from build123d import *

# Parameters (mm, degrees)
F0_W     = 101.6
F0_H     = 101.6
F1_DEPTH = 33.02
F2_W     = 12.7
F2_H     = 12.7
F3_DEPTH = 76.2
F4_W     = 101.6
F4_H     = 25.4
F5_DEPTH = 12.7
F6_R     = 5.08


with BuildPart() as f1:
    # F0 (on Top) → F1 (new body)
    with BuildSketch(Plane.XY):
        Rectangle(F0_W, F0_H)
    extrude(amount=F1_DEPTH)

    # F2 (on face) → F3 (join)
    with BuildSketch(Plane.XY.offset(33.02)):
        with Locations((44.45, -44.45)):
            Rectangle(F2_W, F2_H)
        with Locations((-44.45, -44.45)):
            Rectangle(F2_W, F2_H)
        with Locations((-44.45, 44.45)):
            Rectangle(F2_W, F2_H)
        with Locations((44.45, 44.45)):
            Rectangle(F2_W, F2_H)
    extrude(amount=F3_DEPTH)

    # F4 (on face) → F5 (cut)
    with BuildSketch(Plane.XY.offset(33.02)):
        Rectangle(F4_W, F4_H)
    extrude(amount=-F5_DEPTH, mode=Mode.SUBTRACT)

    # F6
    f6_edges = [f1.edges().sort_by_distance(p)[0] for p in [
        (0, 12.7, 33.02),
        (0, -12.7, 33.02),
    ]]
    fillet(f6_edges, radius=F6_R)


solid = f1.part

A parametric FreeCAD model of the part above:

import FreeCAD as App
import Part
import Sketcher

V = App.Vector
Q = App.Units.Quantity


def edges_at(feature, points):
    """Names of the edges that pass closest to the given points."""
    edges = feature.Shape.Edges
    near = lambda p: min(range(len(edges)), key=lambda i: edges[i].distToShape(Part.Vertex(*p))[0])
    return sorted({f"Edge{near(p) + 1}" for p in points})


def add_polygon(sketch, points):
    """Adds a closed chain of lines whose ends are joined by coincident constraints."""
    first, n = sketch.GeometryCount, len(points)
    for a, b in zip(points, points[1:] + points[:1]):
        sketch.addGeometry(Part.LineSegment(App.Vector(*a, 0), App.Vector(*b, 0)), False)
    for i in range(n):
        sketch.addConstraint(Sketcher.Constraint("Coincident", first + i, 2, first + (i + 1) % n, 1))

doc = App.newDocument("Part")
body = doc.addObject("PartDesign::Body", "Body")

# Sketch on XY plane
sketch1 = doc.addObject("Sketcher::SketchObject", "Sketch")
body.addObject(sketch1)
sketch1.AttachmentSupport = (doc.XY_Plane, [""])
sketch1.MapMode = "FlatFace"
add_polygon(sketch1, [(-51, 51), (-51, -51), (51, -51), (51, 51)])  # lines 0-3
sketch1.addConstraint(Sketcher.Constraint("Vertical", 0))
sketch1.addConstraint(Sketcher.Constraint("Horizontal", 1))
sketch1.addConstraint(Sketcher.Constraint("Vertical", 2))
sketch1.addConstraint(Sketcher.Constraint("Horizontal", 3))
sketch1.addConstraint(Sketcher.Constraint("Symmetric", 0, 2, 2, 2, -1, 1))
sketch1.addConstraint(Sketcher.Constraint("Equal", 3, 0))
sketch1.addConstraint(Sketcher.Constraint("DistanceX", 1, 1, 1, 2, Q("4 in")))
pad1 = doc.addObject("PartDesign::Pad", "Pad")
body.addObject(pad1)
pad1.Profile = sketch1
pad1.Length = Q("1.3 in")

# Sketch on XY plane
sketch2 = doc.addObject("Sketcher::SketchObject", "Sketch001")
body.addObject(sketch2)
sketch2.AttachmentSupport = (doc.XY_Plane, [""])
sketch2.MapMode = "FlatFace"
sketch2.AttachmentOffset = App.Placement(V(0, 0, 1.3 * 25.4), App.Rotation())
add_polygon(sketch2, [(38, -38), (38, -51), (51, -51), (51, -38)])  # lines 0-3
add_polygon(sketch2, [(-51, -38), (-51, -51), (-38, -51), (-38, -38)])  # lines 4-7
add_polygon(sketch2, [(-51, 51), (-51, 38), (-38, 38), (-38, 51)])  # lines 8-11
add_polygon(sketch2, [(38, 51), (38, 38), (51, 38), (51, 51)])  # lines 12-15
sketch2.addConstraint(Sketcher.Constraint("Vertical", 0))
sketch2.addConstraint(Sketcher.Constraint("Horizontal", 1))
sketch2.addConstraint(Sketcher.Constraint("Vertical", 2))
sketch2.addConstraint(Sketcher.Constraint("Horizontal", 3))
sketch2.addConstraint(Sketcher.Constraint("Vertical", 4))
sketch2.addConstraint(Sketcher.Constraint("Horizontal", 5))
sketch2.addConstraint(Sketcher.Constraint("Vertical", 6))
sketch2.addConstraint(Sketcher.Constraint("Horizontal", 7))
sketch2.addConstraint(Sketcher.Constraint("Vertical", 8))
sketch2.addConstraint(Sketcher.Constraint("Horizontal", 9))
sketch2.addConstraint(Sketcher.Constraint("Vertical", 10))
sketch2.addConstraint(Sketcher.Constraint("Horizontal", 11))
sketch2.addConstraint(Sketcher.Constraint("Vertical", 12))
sketch2.addConstraint(Sketcher.Constraint("Horizontal", 13))
sketch2.addConstraint(Sketcher.Constraint("Vertical", 14))
sketch2.addConstraint(Sketcher.Constraint("Horizontal", 15))
sketch2.addConstraint(Sketcher.Constraint("Symmetric", 2, 2, 8, 2, -1, 1))
sketch2.addConstraint(Sketcher.Constraint("Symmetric", 0, 2, 10, 2, -1, 1))
sketch2.addConstraint(Sketcher.Constraint("Symmetric", 6, 2, 12, 2, -1, 1))
sketch2.addConstraint(Sketcher.Constraint("Symmetric", 4, 2, 14, 2, -1, 1))
sketch2.addConstraint(Sketcher.Constraint("Symmetric", 1, 2, 4, 2, -2))
sketch2.addConstraint(Sketcher.Constraint("Symmetric", 3, 2, 6, 2, -2))
sketch2.addConstraint(Sketcher.Constraint("Equal", 15, 0))
sketch2.addConstraint(Sketcher.Constraint("DistanceX", 1, 1, 1, 2, Q("0.5 in")))
sketch2.addConstraint(Sketcher.Constraint("DistanceY", 0, 2, -1, 1, Q("2 in")))
sketch2.addConstraint(Sketcher.Constraint("DistanceX", -1, 1, 1, 2, Q("2 in")))
pad2 = doc.addObject("PartDesign::Pad", "Pad001")
body.addObject(pad2)
pad2.Profile = sketch2
pad2.Length = Q("3 in")

# Sketch on XY plane
sketch3 = doc.addObject("Sketcher::SketchObject", "Sketch002")
body.addObject(sketch3)
sketch3.AttachmentSupport = (doc.XY_Plane, [""])
sketch3.MapMode = "FlatFace"
sketch3.AttachmentOffset = App.Placement(V(0, 0, 1.3 * 25.4), App.Rotation())
add_polygon(sketch3, [(-51, 13), (-51, -13), (51, -13), (51, 13)])  # lines 0-3
sketch3.addConstraint(Sketcher.Constraint("Vertical", 0))
sketch3.addConstraint(Sketcher.Constraint("Horizontal", 1))
sketch3.addConstraint(Sketcher.Constraint("Vertical", 2))
sketch3.addConstraint(Sketcher.Constraint("Horizontal", 3))
sketch3.addConstraint(Sketcher.Constraint("Symmetric", 0, 2, 2, 2, -1, 1))
sketch3.addConstraint(Sketcher.Constraint("DistanceX", 1, 1, 1, 2, Q("4 in")))
sketch3.addConstraint(Sketcher.Constraint("DistanceY", 0, 2, 0, 1, Q("1 in")))
pocket1 = doc.addObject("PartDesign::Pocket", "Pocket")
body.addObject(pocket1)
pocket1.Profile = sketch3
pocket1.Length = Q("0.5 in")
doc.recompute()

fillet = doc.addObject("PartDesign::Fillet", "Fillet")
body.addObject(fillet)
fillet.Base = (pocket1, edges_at(pocket1, [(0, 12.7, 33.02), (0, -12.7, 33.02)]))
fillet.Radius = Q("0.2 in")

doc.recompute()
